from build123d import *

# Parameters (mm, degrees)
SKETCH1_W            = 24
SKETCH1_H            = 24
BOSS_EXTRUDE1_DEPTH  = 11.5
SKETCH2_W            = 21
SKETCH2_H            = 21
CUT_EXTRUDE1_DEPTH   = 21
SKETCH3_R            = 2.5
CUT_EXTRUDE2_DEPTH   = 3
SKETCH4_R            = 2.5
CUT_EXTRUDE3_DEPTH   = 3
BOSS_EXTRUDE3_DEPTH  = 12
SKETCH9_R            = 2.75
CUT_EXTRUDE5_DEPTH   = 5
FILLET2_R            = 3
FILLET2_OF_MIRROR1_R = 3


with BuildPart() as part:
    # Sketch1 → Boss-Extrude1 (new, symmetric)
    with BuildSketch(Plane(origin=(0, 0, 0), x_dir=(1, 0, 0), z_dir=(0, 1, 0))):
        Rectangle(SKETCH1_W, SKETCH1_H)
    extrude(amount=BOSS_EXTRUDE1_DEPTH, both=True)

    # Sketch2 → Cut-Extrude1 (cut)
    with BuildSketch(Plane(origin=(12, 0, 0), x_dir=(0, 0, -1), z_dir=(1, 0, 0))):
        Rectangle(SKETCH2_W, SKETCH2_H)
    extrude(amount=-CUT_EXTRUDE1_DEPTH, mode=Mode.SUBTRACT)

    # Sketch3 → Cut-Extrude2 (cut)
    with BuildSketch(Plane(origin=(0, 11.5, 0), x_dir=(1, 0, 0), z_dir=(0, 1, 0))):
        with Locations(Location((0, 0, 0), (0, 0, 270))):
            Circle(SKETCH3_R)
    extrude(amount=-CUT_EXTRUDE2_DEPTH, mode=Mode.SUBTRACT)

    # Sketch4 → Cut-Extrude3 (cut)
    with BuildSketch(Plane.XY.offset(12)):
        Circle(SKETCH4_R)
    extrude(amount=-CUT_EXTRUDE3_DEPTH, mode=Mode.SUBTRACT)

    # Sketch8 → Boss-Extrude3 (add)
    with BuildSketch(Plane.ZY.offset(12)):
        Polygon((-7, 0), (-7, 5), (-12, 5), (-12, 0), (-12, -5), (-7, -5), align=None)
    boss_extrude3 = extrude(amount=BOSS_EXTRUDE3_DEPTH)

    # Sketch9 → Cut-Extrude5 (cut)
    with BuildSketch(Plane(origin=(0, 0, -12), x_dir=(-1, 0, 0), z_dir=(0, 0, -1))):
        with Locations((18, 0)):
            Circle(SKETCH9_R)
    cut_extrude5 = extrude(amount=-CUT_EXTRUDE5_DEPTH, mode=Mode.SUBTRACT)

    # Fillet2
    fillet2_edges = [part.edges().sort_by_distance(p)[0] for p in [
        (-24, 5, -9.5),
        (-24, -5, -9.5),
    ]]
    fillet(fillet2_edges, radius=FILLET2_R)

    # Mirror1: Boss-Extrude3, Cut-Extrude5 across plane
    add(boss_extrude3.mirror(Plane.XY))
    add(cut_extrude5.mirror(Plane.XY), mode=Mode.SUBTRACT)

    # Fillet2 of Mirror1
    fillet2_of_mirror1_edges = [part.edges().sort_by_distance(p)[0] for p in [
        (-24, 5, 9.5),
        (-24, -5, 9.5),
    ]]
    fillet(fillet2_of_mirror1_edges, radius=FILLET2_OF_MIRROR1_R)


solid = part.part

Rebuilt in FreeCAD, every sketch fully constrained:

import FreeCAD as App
import Part
import Sketcher

V = App.Vector
Q = App.Units.Quantity


def edges_at(feature, points):
    """Names of the edges that pass closest to the given points."""
    edges = feature.Shape.Edges
    near = lambda p: min(range(len(edges)), key=lambda i: edges[i].distToShape(Part.Vertex(*p))[0])
    return sorted({f"Edge{near(p) + 1}" for p in points})

doc = App.newDocument("Part")
params = doc.addObject("Spreadsheet::Sheet", "Params")
for row, (alias, value) in enumerate([
    ("sketch1_width", "24 mm"),
    ("pad1_length", "23 mm"),
    ("sketch2_width", "21 mm"),
    ("pocket1_length", "21 mm"),
    ("sketch3_diameter", "5 mm"),
    ("pocket2_length", "3 mm"),
    ("sketch4_diameter", "5 mm"),
    ("pocket3_length", "3 mm"),
    ("sketch5_width", "10 mm"),
    ("sketch5_height", "5 mm"),
    ("pad2_length", "12 mm"),
    ("sketch6_diameter", "5.5 mm"),
    ("pocket4_length", "5 mm"),
    ("fillet_radius", "3 mm"),
    ("fillet2_radius", "3 mm"),
], start=1):
    params.set(f"A{row}", alias)
    params.set(f"B{row}", "=" + value)
    params.setAlias(f"B{row}", alias)

body = doc.addObject("PartDesign::Body", "Body")

# Sketch on XZ plane
sketch1 = doc.addObject("Sketcher::SketchObject", "Sketch")
body.addObject(sketch1)
sketch1.AttachmentSupport = (doc.XZ_Plane, [""])
sketch1.MapMode = "FlatFace"
sketch1.addGeometry([
    Part.LineSegment(V(-12, -12, 0), V(-12, 12, 0)),
    Part.LineSegment(V(-12, 12, 0), V(12, 12, 0)),
    Part.LineSegment(V(12, 12, 0), V(12, -12, 0)),
    Part.LineSegment(V(12, -12, 0), V(-12, -12, 0)),
], False)
sketch1.addConstraint([
    Sketcher.Constraint("Coincident", 0, 2, 1, 1),
    Sketcher.Constraint("Coincident", 1, 2, 2, 1),
    Sketcher.Constraint("Coincident", 2, 2, 3, 1),
    Sketcher.Constraint("Coincident", 3, 2, 0, 1),
    Sketcher.Constraint("Vertical", 0),
    Sketcher.Constraint("Horizontal", 1),
    Sketcher.Constraint("Vertical", 2),
    Sketcher.Constraint("Horizontal", 3),
    Sketcher.Constraint("Symmetric", 0, 2, 2, 2, -1, 1),
    Sketcher.Constraint("Equal", 3, 0),
    Sketcher.Constraint("DistanceX", 1, 1, 1, 2, Q("24 mm")),
])
sketch1.setExpression("Constraints[10]", "Params.sketch1_width")
pad1 = doc.addObject("PartDesign::Pad", "Pad")
body.addObject(pad1)
pad1.Profile = sketch1
pad1.setExpression("Length", "Params.pad1_length")
pad1.Midplane = True

# Sketch on YZ plane
sketch2 = doc.addObject("Sketcher::SketchObject", "Sketch001")
body.addObject(sketch2)
sketch2.AttachmentSupport = (doc.YZ_Plane, [""])
sketch2.MapMode = "FlatFace"
sketch2.AttachmentOffset = App.Placement(V(0, 0, 12), App.Rotation())
sketch2.addGeometry([
    Part.LineSegment(V(10.5, 10.5, 0), V(-10.5, 10.5, 0)),
    Part.LineSegment(V(-10.5, 10.5, 0), V(-10.5, -10.5, 0)),
    Part.LineSegment(V(-10.5, -10.5, 0), V(10.5, -10.5, 0)),
    Part.LineSegment(V(10.5, -10.5, 0), V(10.5, 10.5, 0)),
], False)
sketch2.addConstraint([
    Sketcher.Constraint("Coincident", 0, 2, 1, 1),
    Sketcher.Constraint("Coincident", 1, 2, 2, 1),
    Sketcher.Constraint("Coincident", 2, 2, 3, 1),
    Sketcher.Constraint("Coincident", 3, 2, 0, 1),
    Sketcher.Constraint("Horizontal", 0),
    Sketcher.Constraint("Vertical", 1),
    Sketcher.Constraint("Horizontal", 2),
    Sketcher.Constraint("Vertical", 3),
    Sketcher.Constraint("Symmetric", 0, 2, 2, 2, -1, 1),
    Sketcher.Constraint("Equal", 2, 1),
    Sketcher.Constraint("DistanceX", 0, 2, 0, 1, Q("21 mm")),
])
sketch2.setExpression("Constraints[10]", "Params.sketch2_width")
pocket1 = doc.addObject("PartDesign::Pocket", "Pocket")
body.addObject(pocket1)
pocket1.Profile = sketch2
pocket1.setExpression("Length", "Params.pocket1_length")

# Sketch on XZ plane
sketch3 = doc.addObject("Sketcher::SketchObject", "Sketch002")
body.addObject(sketch3)
sketch3.AttachmentSupport = (doc.XZ_Plane, [""])
sketch3.MapMode = "FlatFace"
sketch3.AttachmentOffset = App.Placement(V(0, 0, -11.5), App.Rotation())
sketch3.addGeometry(Part.Circle(V(0, 0, 0), V(0, 0, 1), 2.5), False)
sketch3.addConstraint([
    Sketcher.Constraint("Coincident", 0, 3, -1, 1),
    Sketcher.Constraint("Diameter", 0, Q("5 mm")),
])
sketch3.setExpression("Constraints[1]", "Params.sketch3_diameter")
pocket2 = doc.addObject("PartDesign::Pocket", "Pocket001")
body.addObject(pocket2)
pocket2.Profile = sketch3
pocket2.setExpression("Length", "Params.pocket2_length")
pocket2.Reversed = True

# Sketch on XY plane
sketch4 = doc.addObject("Sketcher::SketchObject", "Sketch003")
body.addObject(sketch4)
sketch4.AttachmentSupport = (doc.XY_Plane, [""])
sketch4.MapMode = "FlatFace"
sketch4.AttachmentOffset = App.Placement(V(0, 0, 12), App.Rotation())
sketch4.addGeometry(Part.Circle(V(0, 0, 0), V(0, 0, 1), 2.5), False)
sketch4.addConstraint([
    Sketcher.Constraint("Coincident", 0, 3, -1, 1),
    Sketcher.Constraint("Diameter", 0, Q("5 mm")),
])
sketch4.setExpression("Constraints[1]", "Params.sketch4_diameter")
pocket3 = doc.addObject("PartDesign::Pocket", "Pocket002")
body.addObject(pocket3)
pocket3.Profile = sketch4
pocket3.setExpression("Length", "Params.pocket3_length")

# Sketch on YZ plane
sketch5 = doc.addObject("Sketcher::SketchObject", "Sketch004")
body.addObject(sketch5)
sketch5.AttachmentSupport = (doc.YZ_Plane, [""])
sketch5.MapMode = "FlatFace"
sketch5.AttachmentOffset = App.Placement(V(0, 0, -12), App.Rotation())
sketch5.addGeometry([
    Part.LineSegment(V(5, -7, 0), V(5, -12, 0)),
    Part.LineSegment(V(5, -12, 0), V(-5, -12, 0)),
    Part.LineSegment(V(-5, -12, 0), V(-5, -7, 0)),
    Part.LineSegment(V(-5, -7, 0), V(5, -7, 0)),
], False)
sketch5.addConstraint([
    Sketcher.Constraint("Coincident", 0, 2, 1, 1),
    Sketcher.Constraint("Coincident", 1, 2, 2, 1),
    Sketcher.Constraint("Coincident", 2, 2, 3, 1),
    Sketcher.Constraint("Coincident", 3, 2, 0, 1),
    Sketcher.Constraint("Vertical", 0),
    Sketcher.Constraint("Horizontal", 1),
    Sketcher.Constraint("Vertical", 2),
    Sketcher.Constraint("Horizontal", 3),
    Sketcher.Constraint("DistanceX", 1, 2, 1, 1, Q("10 mm")),
    Sketcher.Constraint("DistanceY", 0, 2, 0, 1, Q("5 mm")),
    Sketcher.Constraint("DistanceX", -1, 1, 0, 2, Q("5 mm")),
    Sketcher.Constraint("DistanceY", 0, 2, -1, 1, Q("12 mm")),
])
sketch5.setExpression("Constraints[8]", "Params.sketch5_width")
sketch5.setExpression("Constraints[9]", "Params.sketch5_height")
pad2 = doc.addObject("PartDesign::Pad", "Pad001")
body.addObject(pad2)
pad2.Profile = sketch5
pad2.setExpression("Length", "Params.pad2_length")
pad2.Reversed = True

# Sketch on XY plane
sketch6 = doc.addObject("Sketcher::SketchObject", "Sketch005")
body.addObject(sketch6)
sketch6.AttachmentSupport = (doc.XY_Plane, [""])
sketch6.MapMode = "FlatFace"
sketch6.AttachmentOffset = App.Placement(V(0, 0, -12), App.Rotation())
sketch6.addGeometry(Part.Circle(V(-18, 0, 0), V(0, 0, 1), 2.75), False)
sketch6.addConstraint([
    Sketcher.Constraint("PointOnObject", 0, 3, -1),
    Sketcher.Constraint("Diameter", 0, Q("5.5 mm")),
    Sketcher.Constraint("DistanceX", 0, 3, -1, 1, Q("18 mm")),
])
sketch6.setExpression("Constraints[1]", "Params.sketch6_diameter")
pocket4 = doc.addObject("PartDesign::Pocket", "Pocket003")
body.addObject(pocket4)
pocket4.Profile = sketch6
pocket4.setExpression("Length", "Params.pocket4_length")
pocket4.Reversed = True
doc.recompute()

fillet = doc.addObject("PartDesign::Fillet", "Fillet")
body.addObject(fillet)
fillet.Base = (pocket4, edges_at(pocket4, [(-24, 5, -9.5), (-24, -5, -9.5)]))
fillet.setExpression("Radius", "Params.fillet_radius")
doc.recompute()

mirrored = doc.addObject("PartDesign::Mirrored", "Mirrored")
body.addObject(mirrored)
mirrored.Originals = [pad2, pocket4]
mirrored.MirrorPlane = (doc.XY_Plane, [""])
body.Tip = mirrored
doc.recompute()

fillet2 = doc.addObject("PartDesign::Fillet", "Fillet001")
body.addObject(fillet2)
fillet2.Base = (mirrored, edges_at(mirrored, [(-24, 5, 9.5), (-24, -5, 9.5)]))
fillet2.setExpression("Radius", "Params.fillet2_radius")

doc.recompute()
